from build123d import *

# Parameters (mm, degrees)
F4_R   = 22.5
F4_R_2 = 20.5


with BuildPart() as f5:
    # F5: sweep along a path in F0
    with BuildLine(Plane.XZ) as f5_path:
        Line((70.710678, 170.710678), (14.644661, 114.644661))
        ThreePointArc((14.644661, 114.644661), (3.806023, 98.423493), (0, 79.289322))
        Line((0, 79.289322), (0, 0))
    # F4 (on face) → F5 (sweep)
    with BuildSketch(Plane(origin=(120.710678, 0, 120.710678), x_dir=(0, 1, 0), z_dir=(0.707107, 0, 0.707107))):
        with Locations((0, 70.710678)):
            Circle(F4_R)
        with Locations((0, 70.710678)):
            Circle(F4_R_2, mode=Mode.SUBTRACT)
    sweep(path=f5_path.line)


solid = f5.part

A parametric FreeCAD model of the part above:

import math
import FreeCAD as App
import Part
import Sketcher
Q = App.Units.Quantity

doc = App.newDocument("Part")
body = doc.addObject("PartDesign::Body", "Body")

sketch1 = body.newObject("Sketcher::SketchObject", "Sketch")
sketch1.Placement = App.Placement(App.Vector(120.710678, 0, 120.710678), App.Rotation(App.Vector(0, 1, 0), App.Vector(-0.707106781, 0, 0.707106781), App.Vector(0.707106781, 0, 0.707106781), "ZXY"))
sketch1.addGeometry(Part.Circle(App.Vector(0, 71, 0), App.Vector(0, 0, 1), 22), False)
sketch1.addGeometry(Part.Circle(App.Vector(0, 71, 0), App.Vector(0, 0, 1), 20), False)
sketch1.addConstraint(Sketcher.Constraint("Coincident", 1, 3, 0, 3))
sketch1.addConstraint(Sketcher.Constraint("PointOnObject", 0, 3, -2))
sketch1.addConstraint(Sketcher.Constraint("Diameter", 0, Q("45 mm")))
sketch1.addConstraint(Sketcher.Constraint("Diameter", 1, Q("41 mm")))
sketch1.addConstraint(Sketcher.Constraint("DistanceY", -1, 1, 0, 3, Q("70.710678 mm")))

sketch2 = body.newObject("Sketcher::SketchObject", "Sketch001")
sketch2.AttachmentSupport = (doc.getObject("XZ_Plane"), [""])
sketch2.MapMode = "FlatFace"
sketch2.addGeometry(Part.LineSegment(App.Vector(71, 171, 0), App.Vector(15, 115, 0)), False)
sketch2.addGeometry(Part.ArcOfCircle(Part.Circle(App.Vector(50, 79, 0), App.Vector(0, 0, 1), 50), math.radians(135), math.radians(180)), False)
sketch2.addGeometry(Part.LineSegment(App.Vector(0, 79, 0), App.Vector(0, 0, 0)), False)
sketch2.addConstraint(Sketcher.Constraint("Tangent", 0, 2, 1, 1))
sketch2.addConstraint(Sketcher.Constraint("Tangent", 1, 2, 2, 1))
sketch2.addConstraint(Sketcher.Constraint("Vertical", 2))
sketch2.addConstraint(Sketcher.Constraint("Coincident", 2, 2, -1, 1))
sketch2.addConstraint(Sketcher.Constraint("Radius", 1, Q("49.999998 mm")))
sketch2.addConstraint(Sketcher.Constraint("Angle", 0, Q("-135 deg")))
sketch2.addConstraint(Sketcher.Constraint("DistanceY", 2, 2, 2, 1, Q("79.289322 mm")))
sketch2.addConstraint(Sketcher.Constraint("Distance", 0, Q("79.289322 mm")))
doc.recompute()

additivepipe = body.newObject("PartDesign::AdditivePipe", "AdditivePipe")
additivepipe.Profile = sketch1
additivepipe.Spine = (sketch2, ["Edge1", "Edge2", "Edge3"])

doc.recompute()
